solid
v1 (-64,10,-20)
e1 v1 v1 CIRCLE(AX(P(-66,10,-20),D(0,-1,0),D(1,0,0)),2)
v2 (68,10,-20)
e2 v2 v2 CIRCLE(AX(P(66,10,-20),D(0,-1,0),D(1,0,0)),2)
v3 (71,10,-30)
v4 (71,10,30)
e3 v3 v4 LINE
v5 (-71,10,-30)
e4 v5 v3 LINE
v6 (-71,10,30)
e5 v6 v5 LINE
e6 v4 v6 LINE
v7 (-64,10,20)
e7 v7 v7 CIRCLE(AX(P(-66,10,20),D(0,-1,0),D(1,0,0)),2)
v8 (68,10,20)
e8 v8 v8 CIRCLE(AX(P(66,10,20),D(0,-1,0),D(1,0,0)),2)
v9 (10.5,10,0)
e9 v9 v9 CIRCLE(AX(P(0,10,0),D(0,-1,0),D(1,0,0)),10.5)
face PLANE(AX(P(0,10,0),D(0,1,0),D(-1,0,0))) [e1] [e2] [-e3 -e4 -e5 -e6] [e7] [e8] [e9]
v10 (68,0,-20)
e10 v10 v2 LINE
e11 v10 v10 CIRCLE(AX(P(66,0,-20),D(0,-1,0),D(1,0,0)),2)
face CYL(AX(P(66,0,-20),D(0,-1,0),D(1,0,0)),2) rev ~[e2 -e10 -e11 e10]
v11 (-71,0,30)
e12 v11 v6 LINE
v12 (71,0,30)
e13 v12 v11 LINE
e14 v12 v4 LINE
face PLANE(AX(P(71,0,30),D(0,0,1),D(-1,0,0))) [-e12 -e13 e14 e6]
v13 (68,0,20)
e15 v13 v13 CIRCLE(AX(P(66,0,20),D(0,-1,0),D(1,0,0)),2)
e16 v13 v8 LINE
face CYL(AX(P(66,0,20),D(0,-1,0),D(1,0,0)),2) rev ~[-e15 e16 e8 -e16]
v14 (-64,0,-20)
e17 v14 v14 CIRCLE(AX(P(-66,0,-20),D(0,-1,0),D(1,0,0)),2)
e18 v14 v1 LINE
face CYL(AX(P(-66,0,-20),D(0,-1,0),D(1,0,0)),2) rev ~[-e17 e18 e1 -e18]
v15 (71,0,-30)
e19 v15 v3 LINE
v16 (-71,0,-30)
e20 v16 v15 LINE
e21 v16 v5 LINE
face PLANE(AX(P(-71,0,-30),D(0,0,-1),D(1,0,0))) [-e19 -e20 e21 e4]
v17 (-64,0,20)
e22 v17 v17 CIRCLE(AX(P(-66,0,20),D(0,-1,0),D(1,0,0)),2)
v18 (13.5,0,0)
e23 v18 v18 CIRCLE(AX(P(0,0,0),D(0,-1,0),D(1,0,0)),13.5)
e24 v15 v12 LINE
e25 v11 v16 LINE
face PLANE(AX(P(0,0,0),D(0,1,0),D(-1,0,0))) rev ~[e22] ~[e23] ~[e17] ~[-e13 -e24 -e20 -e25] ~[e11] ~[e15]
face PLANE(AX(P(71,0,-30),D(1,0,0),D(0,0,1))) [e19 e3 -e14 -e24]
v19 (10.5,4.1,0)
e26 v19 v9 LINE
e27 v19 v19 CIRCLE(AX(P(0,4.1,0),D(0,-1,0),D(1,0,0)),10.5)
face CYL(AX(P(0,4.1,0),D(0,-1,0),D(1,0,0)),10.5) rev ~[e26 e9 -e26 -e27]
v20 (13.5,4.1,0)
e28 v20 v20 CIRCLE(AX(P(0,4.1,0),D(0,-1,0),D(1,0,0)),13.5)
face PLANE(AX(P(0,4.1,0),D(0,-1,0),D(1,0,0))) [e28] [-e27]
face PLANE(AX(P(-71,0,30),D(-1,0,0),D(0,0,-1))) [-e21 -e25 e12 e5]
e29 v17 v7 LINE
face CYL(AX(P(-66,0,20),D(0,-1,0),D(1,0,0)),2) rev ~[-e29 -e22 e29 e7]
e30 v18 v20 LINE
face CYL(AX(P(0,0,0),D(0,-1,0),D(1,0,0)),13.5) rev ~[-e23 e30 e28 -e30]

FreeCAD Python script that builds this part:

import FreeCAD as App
import Part
import Sketcher

V = App.Vector


def add_polygon(sketch, points):
    """Adds a closed chain of lines whose ends are joined by coincident constraints."""
    first, n = sketch.GeometryCount, len(points)
    for a, b in zip(points, points[1:] + points[:1]):
        sketch.addGeometry(Part.LineSegment(App.Vector(*a, 0), App.Vector(*b, 0)), False)
    for i in range(n):
        sketch.addConstraint(Sketcher.Constraint("Coincident", first + i, 2, first + (i + 1) % n, 1))

doc = App.newDocument("Part")
body = doc.addObject("PartDesign::Body", "Body")

# Sketch on XZ plane
sketch1 = body.newObject("Sketcher::SketchObject", "Sketch")
sketch1.AttachmentSupport = (doc.getObject("XZ_Plane"), [""])
sketch1.MapMode = "FlatFace"
add_polygon(sketch1, [(71, -30), (-71, -30), (-71, 30), (71, 30)])  # lines 0-3
sketch1.addConstraint([
    Sketcher.Constraint("Horizontal", 0),
    Sketcher.Constraint("Vertical", 1),
    Sketcher.Constraint("Horizontal", 2),
    Sketcher.Constraint("Vertical", 3),
    Sketcher.Constraint("Symmetric", 0, 2, 2, 2, -1, 1),
    Sketcher.Constraint("DistanceX", 0, 2, 0, 1, 142.0),
    Sketcher.Constraint("DistanceY", 1, 1, 1, 2, 60.0),
])
pad1 = body.newObject("PartDesign::Pad", "Pad")
pad1.Profile = sketch1
pad1.Length = 10
pad1.Reversed = True

# Sketch on XZ plane
sketch2 = body.newObject("Sketcher::SketchObject", "Sketch001")
sketch2.AttachmentSupport = (doc.getObject("XZ_Plane"), [""])
sketch2.MapMode = "FlatFace"
sketch2.addGeometry(Part.Circle(V(0, 0, 0), V(0, 0, 1), 14), False)
sketch2.addConstraint([
    Sketcher.Constraint("Coincident", 0, 3, -1, 1),
    Sketcher.Constraint("Diameter", 0, 27.0),
])
pocket1 = body.newObject("PartDesign::Pocket", "Pocket")
pocket1.Profile = sketch2
pocket1.Length = 4.1

# Sketch on XZ plane
sketch3 = body.newObject("Sketcher::SketchObject", "Sketch002")
sketch3.AttachmentSupport = (doc.getObject("XZ_Plane"), [""])
sketch3.MapMode = "FlatFace"
sketch3.AttachmentOffset = App.Placement(V(0, 0, -4.1), App.Rotation())
sketch3.addGeometry(Part.Circle(V(0, 0, 0), V(0, 0, 1), 10), False)
sketch3.addConstraint([
    Sketcher.Constraint("Coincident", 0, 3, -1, 1),
    Sketcher.Constraint("Diameter", 0, 21.0),
])
pocket2 = body.newObject("PartDesign::Pocket", "Pocket001")
pocket2.Profile = sketch3
pocket2.Length = 10

# Sketch on XZ plane
sketch4 = body.newObject("Sketcher::SketchObject", "Sketch003")
sketch4.AttachmentSupport = (doc.getObject("XZ_Plane"), [""])
sketch4.MapMode = "FlatFace"
sketch4.addGeometry([
    Part.Circle(V(-66, 20, 0), V(0, 0, 1), 2),
    Part.Circle(V(-66, -20, 0), V(0, 0, 1), 2),
    Part.Circle(V(66, 20, 0), V(0, 0, 1), 2),
    Part.Circle(V(66, -20, 0), V(0, 0, 1), 2),
], False)
sketch4.addConstraint([
    Sketcher.Constraint("Equal", 0, 1),
    Sketcher.Constraint("Equal", 1, 2),
    Sketcher.Constraint("Equal", 2, 3),
    Sketcher.Constraint("Symmetric", 1, 3, 2, 3, -1, 1),
    Sketcher.Constraint("Symmetric", 0, 3, 3, 3, -1, 1),
    Sketcher.Constraint("Symmetric", 0, 3, 2, 3, -2),
    Sketcher.Constraint("Diameter", 0, 4.0),
    Sketcher.Constraint("DistanceX", 0, 3, -1, 1, 66.0),
    Sketcher.Constraint("DistanceY", -1, 1, 0, 3, 20.0),
])
pocket3 = body.newObject("PartDesign::Pocket", "Pocket002")
pocket3.Profile = sketch4
pocket3.Length = 10

doc.recompute()
